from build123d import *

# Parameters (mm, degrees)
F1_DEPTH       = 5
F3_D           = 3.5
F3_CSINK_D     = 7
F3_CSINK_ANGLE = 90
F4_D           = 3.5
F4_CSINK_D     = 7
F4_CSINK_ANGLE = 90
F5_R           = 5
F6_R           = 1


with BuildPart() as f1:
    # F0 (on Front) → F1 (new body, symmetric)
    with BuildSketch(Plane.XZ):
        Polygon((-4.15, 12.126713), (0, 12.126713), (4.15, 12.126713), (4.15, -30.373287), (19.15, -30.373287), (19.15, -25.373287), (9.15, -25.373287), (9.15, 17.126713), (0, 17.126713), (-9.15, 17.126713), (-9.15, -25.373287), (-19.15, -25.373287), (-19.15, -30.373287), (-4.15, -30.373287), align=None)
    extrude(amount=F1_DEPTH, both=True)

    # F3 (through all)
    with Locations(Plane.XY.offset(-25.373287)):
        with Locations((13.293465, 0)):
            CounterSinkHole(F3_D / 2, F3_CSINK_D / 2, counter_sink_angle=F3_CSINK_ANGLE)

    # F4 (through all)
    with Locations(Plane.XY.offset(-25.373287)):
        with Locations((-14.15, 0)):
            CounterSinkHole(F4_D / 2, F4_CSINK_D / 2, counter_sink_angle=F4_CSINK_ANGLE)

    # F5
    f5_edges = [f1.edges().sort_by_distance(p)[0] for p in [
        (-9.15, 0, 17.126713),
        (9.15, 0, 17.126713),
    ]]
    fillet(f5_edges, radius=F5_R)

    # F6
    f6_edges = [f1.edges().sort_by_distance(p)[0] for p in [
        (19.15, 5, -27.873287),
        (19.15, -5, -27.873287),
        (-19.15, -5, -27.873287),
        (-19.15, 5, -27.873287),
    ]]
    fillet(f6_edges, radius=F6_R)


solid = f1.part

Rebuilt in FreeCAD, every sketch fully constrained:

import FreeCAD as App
import Part
import Sketcher
from FreeCAD import Vector


def edges_at(feature, points):
    """Names of the edges that pass closest to the given points."""
    edges = feature.Shape.Edges
    near = lambda p: min(range(len(edges)), key=lambda i: edges[i].distToShape(Part.Vertex(*p))[0])
    return sorted({f"Edge{near(p) + 1}" for p in points})

doc = App.newDocument("Part")
body = doc.addObject("PartDesign::Body", "Body")

# Sketch on XZ plane
sketch1 = body.newObject("Sketcher::SketchObject", "Sketch")
sketch1.AttachmentSupport = (doc.getObject("XZ_Plane"), [""])
sketch1.MapMode = "FlatFace"
sketch1.addGeometry([
    Part.LineSegment(Vector(-4.15, 12.126713, 0), Vector(4.15, 12.126713, 0)),  # 0
    Part.LineSegment(Vector(4.15, 12.126713, 0), Vector(4.15, -30.373287, 0)),  # 1
    Part.LineSegment(Vector(4.15, -30.373287, 0), Vector(19.15, -30.373287, 0)),  # 2
    Part.LineSegment(Vector(19.15, -30.373287, 0), Vector(19.15, -25.373287, 0)),  # 3
    Part.LineSegment(Vector(19.15, -25.373287, 0), Vector(9.15, -25.373287, 0)),  # 4
    Part.LineSegment(Vector(9.15, -25.373287, 0), Vector(9.15, 17.126713, 0)),  # 5
    Part.LineSegment(Vector(9.15, 17.126713, 0), Vector(-9.15, 17.126713, 0)),  # 6
    Part.LineSegment(Vector(-9.15, 17.126713, 0), Vector(-9.15, -25.373287, 0)),  # 7
    Part.LineSegment(Vector(-9.15, -25.373287, 0), Vector(-19.15, -25.373287, 0)),  # 8
    Part.LineSegment(Vector(-19.15, -25.373287, 0), Vector(-19.15, -30.373287, 0)),  # 9
    Part.LineSegment(Vector(-19.15, -30.373287, 0), Vector(-4.15, -30.373287, 0)),  # 10
    Part.LineSegment(Vector(-4.15, -30.373287, 0), Vector(-4.15, 12.126713, 0)),  # 11
], False)
sketch1.addConstraint([
    Sketcher.Constraint("Coincident", 0, 2, 1, 1),
    Sketcher.Constraint("Coincident", 1, 2, 2, 1),
    Sketcher.Constraint("Coincident", 2, 2, 3, 1),
    Sketcher.Constraint("Coincident", 3, 2, 4, 1),
    Sketcher.Constraint("Coincident", 4, 2, 5, 1),
    Sketcher.Constraint("Coincident", 5, 2, 6, 1),
    Sketcher.Constraint("Coincident", 6, 2, 7, 1),
    Sketcher.Constraint("Coincident", 7, 2, 8, 1),
    Sketcher.Constraint("Coincident", 8, 2, 9, 1),
    Sketcher.Constraint("Coincident", 9, 2, 10, 1),
    Sketcher.Constraint("Coincident", 10, 2, 11, 1),
    Sketcher.Constraint("Coincident", 11, 2, 0, 1),
    Sketcher.Constraint("Horizontal", 0),
    Sketcher.Constraint("Vertical", 1),
    Sketcher.Constraint("Horizontal", 2),
    Sketcher.Constraint("Vertical", 3),
    Sketcher.Constraint("Horizontal", 4),
    Sketcher.Constraint("Vertical", 5),
    Sketcher.Constraint("Horizontal", 6),
    Sketcher.Constraint("Vertical", 7),
    Sketcher.Constraint("Horizontal", 8),
    Sketcher.Constraint("Vertical", 9),
    Sketcher.Constraint("Horizontal", 10),
    Sketcher.Constraint("Vertical", 11),
    Sketcher.Constraint("Symmetric", 4, 2, 7, 2, -2),
    Sketcher.Constraint("Symmetric", 2, 2, 9, 2, -2),
    Sketcher.Constraint("Equal", 2, 10),
    Sketcher.Constraint("Equal", 1, 5),
    Sketcher.Constraint("DistanceX", 2, 1, 2, 2, 15.0),
    Sketcher.Constraint("DistanceX", 4, 2, 4, 1, 10.0),
    Sketcher.Constraint("DistanceY", 3, 1, 3, 2, 5.0),
    Sketcher.Constraint("DistanceX", 0, 1, 0, 2, 8.3),
    Sketcher.Constraint("DistanceY", 1, 2, 1, 1, 42.5),
    Sketcher.Constraint("DistanceY", -1, 1, 0, 2, 12.126713),
])
pad1 = body.newObject("PartDesign::Pad", "Pad")
pad1.Profile = sketch1
pad1.Length = 10
pad1.Midplane = True

# Sketch on XY plane
sketch2 = body.newObject("Sketcher::SketchObject", "Sketch001")
sketch2.AttachmentSupport = (doc.getObject("XY_Plane"), [""])
sketch2.MapMode = "FlatFace"
sketch2.AttachmentOffset = App.Placement(Vector(0, 0, -25.373287), App.Rotation())
sketch2.addGeometry(Part.Circle(Vector(13.293465, 0, 0), Vector(0, 0, 1), 1.75), False)
sketch2.addConstraint([
    Sketcher.Constraint("PointOnObject", 0, 3, -1),
    Sketcher.Constraint("Diameter", 0, 3.5),
    Sketcher.Constraint("DistanceX", -1, 1, 0, 3, 13.293465),
])
doc.recompute()
hole = body.newObject("PartDesign::Hole", "Hole")
hole.Profile = sketch2
hole.ThreadType = "None"
hole.Diameter = 3.5
hole.DepthType = "ThroughAll"
hole.HoleCutType = "Countersink"
hole.HoleCutDiameter = 7
hole.HoleCutCountersinkAngle = 90

# Sketch on XY plane
sketch3 = body.newObject("Sketcher::SketchObject", "Sketch002")
sketch3.AttachmentSupport = (doc.getObject("XY_Plane"), [""])
sketch3.MapMode = "FlatFace"
sketch3.AttachmentOffset = App.Placement(Vector(0, 0, -25.373287), App.Rotation())
sketch3.addGeometry(Part.Circle(Vector(-14.15, 0, 0), Vector(0, 0, 1), 1.75), False)
sketch3.addConstraint([
    Sketcher.Constraint("PointOnObject", 0, 3, -1),
    Sketcher.Constraint("Diameter", 0, 3.5),
    Sketcher.Constraint("DistanceX", 0, 3, -1, 1, 14.15),
])
doc.recompute()
hole2 = body.newObject("PartDesign::Hole", "Hole001")
hole2.Profile = sketch3
hole2.ThreadType = "None"
hole2.Diameter = 3.5
hole2.DepthType = "ThroughAll"
hole2.HoleCutType = "Countersink"
hole2.HoleCutDiameter = 7
hole2.HoleCutCountersinkAngle = 90
doc.recompute()

fillet = body.newObject("PartDesign::Fillet", "Fillet")
fillet.Base = (hole2, edges_at(hole2, [(-9.15, 0, 17.127), (9.15, 0, 17.127)]))
fillet.Radius = 5
doc.recompute()

fillet2 = body.newObject("PartDesign::Fillet", "Fillet001")
fillet2.Base = (fillet, edges_at(fillet, [
    (19.15, 5, -27.873),
    (19.15, -5, -27.873),
    (-19.15, -5, -27.873),
    (-19.15, 5, -27.873),
]))
fillet2.Radius = 1

doc.recompute()
